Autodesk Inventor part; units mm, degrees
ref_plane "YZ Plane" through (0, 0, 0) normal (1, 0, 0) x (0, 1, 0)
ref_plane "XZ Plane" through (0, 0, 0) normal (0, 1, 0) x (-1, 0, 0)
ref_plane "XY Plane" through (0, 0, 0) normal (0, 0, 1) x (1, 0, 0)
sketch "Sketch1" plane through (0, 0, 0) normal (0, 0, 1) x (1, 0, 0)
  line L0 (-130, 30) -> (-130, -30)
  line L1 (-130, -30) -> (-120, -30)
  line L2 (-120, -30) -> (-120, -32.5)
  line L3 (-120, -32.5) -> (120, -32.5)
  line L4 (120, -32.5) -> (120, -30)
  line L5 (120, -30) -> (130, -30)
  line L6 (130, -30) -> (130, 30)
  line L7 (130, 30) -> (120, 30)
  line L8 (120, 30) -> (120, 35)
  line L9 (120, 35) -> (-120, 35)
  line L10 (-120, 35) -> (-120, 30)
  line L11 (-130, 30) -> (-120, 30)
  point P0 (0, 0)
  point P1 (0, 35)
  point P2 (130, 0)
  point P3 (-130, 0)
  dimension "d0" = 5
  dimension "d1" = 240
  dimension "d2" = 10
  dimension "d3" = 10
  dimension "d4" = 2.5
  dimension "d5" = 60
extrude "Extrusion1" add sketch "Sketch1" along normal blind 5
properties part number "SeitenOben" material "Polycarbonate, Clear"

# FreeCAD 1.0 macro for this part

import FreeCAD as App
import Part
import Sketcher


def add_polygon(sketch, points):
    """Adds a closed chain of lines whose ends are joined by coincident constraints."""
    first, n = sketch.GeometryCount, len(points)
    for a, b in zip(points, points[1:] + points[:1]):
        sketch.addGeometry(Part.LineSegment(App.Vector(*a, 0), App.Vector(*b, 0)), False)
    for i in range(n):
        sketch.addConstraint(Sketcher.Constraint("Coincident", first + i, 2, first + (i + 1) % n, 1))

doc = App.newDocument("Part")
body = doc.addObject("PartDesign::Body", "Body")

# Sketch on XY plane
sketch1 = doc.addObject("Sketcher::SketchObject", "Sketch")
body.addObject(sketch1)
sketch1.AttachmentSupport = (doc.XY_Plane, [""])
sketch1.MapMode = "FlatFace"
add_polygon(sketch1, [(-120, 30), (-130, 30), (-130, -30), (-120, -30), (-120, -32.5), (120, -32.5), (120, -30), (130, -30), (130, 30), (120, 30), (120, 35), (-120, 35)])  # lines 0-11
sketch1.addConstraint([
    Sketcher.Constraint("Horizontal", 0),
    Sketcher.Constraint("Vertical", 1),
    Sketcher.Constraint("Horizontal", 2),
    Sketcher.Constraint("Vertical", 3),
    Sketcher.Constraint("Horizontal", 4),
    Sketcher.Constraint("Vertical", 5),
    Sketcher.Constraint("Horizontal", 6),
    Sketcher.Constraint("Vertical", 7),
    Sketcher.Constraint("Horizontal", 8),
    Sketcher.Constraint("Vertical", 9),
    Sketcher.Constraint("Horizontal", 10),
    Sketcher.Constraint("Vertical", 11),
    Sketcher.Constraint("Symmetric", 0, 2, 6, 2, -1, 1),
    Sketcher.Constraint("Symmetric", 2, 2, 8, 2, -1, 1),
    Sketcher.Constraint("Symmetric", 2, 2, 5, 2, -2),
    Sketcher.Constraint("Vertical", 3, 2, 10, 2),
    Sketcher.Constraint("DistanceX", 0, 2, 0, 1, 10.0),
    Sketcher.Constraint("DistanceX", 4, 1, 4, 2, 240.0),
    Sketcher.Constraint("DistanceY", 1, 2, 1, 1, 60.0),
    Sketcher.Constraint("DistanceY", 9, 1, 9, 2, 5.0),
    Sketcher.Constraint("DistanceY", 3, 2, 3, 1, 2.5),
])
pad1 = doc.addObject("PartDesign::Pad", "Pad")
body.addObject(pad1)
pad1.Profile = sketch1
pad1.Length = 5

doc.recompute()
